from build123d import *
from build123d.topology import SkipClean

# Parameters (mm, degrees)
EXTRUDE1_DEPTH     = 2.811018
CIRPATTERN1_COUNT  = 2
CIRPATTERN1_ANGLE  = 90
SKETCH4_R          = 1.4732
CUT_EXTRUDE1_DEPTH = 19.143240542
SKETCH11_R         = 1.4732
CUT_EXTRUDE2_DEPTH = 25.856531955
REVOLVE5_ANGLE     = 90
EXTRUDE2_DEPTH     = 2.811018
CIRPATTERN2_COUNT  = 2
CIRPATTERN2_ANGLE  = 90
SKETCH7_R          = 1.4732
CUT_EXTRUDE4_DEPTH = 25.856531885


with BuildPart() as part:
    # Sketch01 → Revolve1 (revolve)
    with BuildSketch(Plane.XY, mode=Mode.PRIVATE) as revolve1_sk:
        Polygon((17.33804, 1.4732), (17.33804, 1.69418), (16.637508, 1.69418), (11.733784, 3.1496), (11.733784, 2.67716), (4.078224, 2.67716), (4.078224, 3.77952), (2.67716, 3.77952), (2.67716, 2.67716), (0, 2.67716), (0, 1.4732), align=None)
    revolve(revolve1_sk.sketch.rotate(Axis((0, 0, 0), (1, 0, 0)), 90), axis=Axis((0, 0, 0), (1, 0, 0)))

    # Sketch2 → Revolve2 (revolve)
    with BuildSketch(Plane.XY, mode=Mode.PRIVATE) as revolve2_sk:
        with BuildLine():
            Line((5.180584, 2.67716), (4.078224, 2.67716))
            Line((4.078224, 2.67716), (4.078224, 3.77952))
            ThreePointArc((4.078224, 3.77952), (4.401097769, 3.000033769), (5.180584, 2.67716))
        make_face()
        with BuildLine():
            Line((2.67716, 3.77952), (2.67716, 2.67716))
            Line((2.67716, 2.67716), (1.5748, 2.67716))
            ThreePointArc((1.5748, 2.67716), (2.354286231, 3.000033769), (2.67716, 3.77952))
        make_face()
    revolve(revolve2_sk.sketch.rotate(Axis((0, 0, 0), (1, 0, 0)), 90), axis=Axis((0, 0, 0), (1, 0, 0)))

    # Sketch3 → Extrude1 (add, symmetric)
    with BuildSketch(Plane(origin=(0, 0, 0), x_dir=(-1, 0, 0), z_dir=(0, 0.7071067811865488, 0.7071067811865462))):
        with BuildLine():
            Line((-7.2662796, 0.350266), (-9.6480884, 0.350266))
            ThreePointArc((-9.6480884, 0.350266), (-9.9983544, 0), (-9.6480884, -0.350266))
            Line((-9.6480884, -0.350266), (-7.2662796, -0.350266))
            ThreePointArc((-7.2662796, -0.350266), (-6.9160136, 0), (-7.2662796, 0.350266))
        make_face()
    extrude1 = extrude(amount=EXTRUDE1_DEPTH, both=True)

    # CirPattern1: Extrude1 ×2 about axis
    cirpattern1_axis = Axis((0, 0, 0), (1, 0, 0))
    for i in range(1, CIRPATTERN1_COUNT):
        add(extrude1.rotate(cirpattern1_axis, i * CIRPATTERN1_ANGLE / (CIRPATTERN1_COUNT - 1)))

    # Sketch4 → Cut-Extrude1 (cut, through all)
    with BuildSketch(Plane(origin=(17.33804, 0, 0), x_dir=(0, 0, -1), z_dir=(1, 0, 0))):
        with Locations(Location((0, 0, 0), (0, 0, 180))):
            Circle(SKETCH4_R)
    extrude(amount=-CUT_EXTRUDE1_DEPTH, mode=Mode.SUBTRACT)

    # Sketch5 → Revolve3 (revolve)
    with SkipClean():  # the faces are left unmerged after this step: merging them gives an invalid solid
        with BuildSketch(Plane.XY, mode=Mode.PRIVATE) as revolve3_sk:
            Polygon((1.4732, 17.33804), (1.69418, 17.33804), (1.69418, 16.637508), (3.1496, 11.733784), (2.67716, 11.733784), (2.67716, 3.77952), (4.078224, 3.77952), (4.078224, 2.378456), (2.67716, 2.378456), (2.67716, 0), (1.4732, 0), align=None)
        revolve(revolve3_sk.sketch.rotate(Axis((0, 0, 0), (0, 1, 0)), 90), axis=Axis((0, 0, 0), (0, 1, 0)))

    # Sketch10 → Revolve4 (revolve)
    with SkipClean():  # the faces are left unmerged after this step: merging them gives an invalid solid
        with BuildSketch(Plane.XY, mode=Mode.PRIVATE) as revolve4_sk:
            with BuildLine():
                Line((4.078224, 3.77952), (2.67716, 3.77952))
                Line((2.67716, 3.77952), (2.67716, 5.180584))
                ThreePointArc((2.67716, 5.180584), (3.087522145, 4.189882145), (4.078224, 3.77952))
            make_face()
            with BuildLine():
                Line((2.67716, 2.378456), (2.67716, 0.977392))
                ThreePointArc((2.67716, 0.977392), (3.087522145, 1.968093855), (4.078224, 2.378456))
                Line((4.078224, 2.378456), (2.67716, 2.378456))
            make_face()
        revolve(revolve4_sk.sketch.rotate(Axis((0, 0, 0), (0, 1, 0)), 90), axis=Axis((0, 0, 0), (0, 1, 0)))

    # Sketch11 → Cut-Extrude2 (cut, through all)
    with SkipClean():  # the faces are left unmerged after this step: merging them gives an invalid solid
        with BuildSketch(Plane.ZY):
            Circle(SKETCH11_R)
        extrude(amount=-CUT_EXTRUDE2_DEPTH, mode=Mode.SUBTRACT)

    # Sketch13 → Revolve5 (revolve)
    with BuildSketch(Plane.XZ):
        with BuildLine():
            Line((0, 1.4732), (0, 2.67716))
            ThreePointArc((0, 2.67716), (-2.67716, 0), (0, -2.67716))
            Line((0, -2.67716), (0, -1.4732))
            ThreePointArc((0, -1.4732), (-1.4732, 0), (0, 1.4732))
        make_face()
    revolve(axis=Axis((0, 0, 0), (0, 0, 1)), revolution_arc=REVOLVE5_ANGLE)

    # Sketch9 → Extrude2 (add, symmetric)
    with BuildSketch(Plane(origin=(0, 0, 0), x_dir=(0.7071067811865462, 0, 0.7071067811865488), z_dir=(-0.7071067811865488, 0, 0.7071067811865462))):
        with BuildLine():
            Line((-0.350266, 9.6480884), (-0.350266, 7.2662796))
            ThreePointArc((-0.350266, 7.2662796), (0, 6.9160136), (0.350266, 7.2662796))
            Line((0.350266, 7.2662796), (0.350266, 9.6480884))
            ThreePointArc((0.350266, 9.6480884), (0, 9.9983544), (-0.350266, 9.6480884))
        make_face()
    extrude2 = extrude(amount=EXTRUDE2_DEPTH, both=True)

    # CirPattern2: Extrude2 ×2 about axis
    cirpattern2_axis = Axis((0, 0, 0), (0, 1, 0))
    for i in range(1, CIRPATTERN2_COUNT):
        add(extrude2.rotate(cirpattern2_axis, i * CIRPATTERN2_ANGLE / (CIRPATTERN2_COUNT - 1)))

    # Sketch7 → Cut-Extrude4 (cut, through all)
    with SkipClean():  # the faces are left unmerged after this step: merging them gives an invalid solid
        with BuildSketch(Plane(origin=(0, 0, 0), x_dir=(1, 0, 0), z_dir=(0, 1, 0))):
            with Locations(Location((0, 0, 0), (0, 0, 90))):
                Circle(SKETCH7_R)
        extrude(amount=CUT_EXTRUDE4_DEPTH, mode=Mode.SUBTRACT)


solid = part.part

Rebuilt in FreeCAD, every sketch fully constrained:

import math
import FreeCAD as App
import Part
import Sketcher

V = App.Vector
Q = App.Units.Quantity


def add_polygon(sketch, points):
    """Adds a closed chain of lines whose ends are joined by coincident constraints."""
    first, n = sketch.GeometryCount, len(points)
    for a, b in zip(points, points[1:] + points[:1]):
        sketch.addGeometry(Part.LineSegment(App.Vector(*a, 0), App.Vector(*b, 0)), False)
    for i in range(n):
        sketch.addConstraint(Sketcher.Constraint("Coincident", first + i, 2, first + (i + 1) % n, 1))

doc = App.newDocument("Part")
body = doc.addObject("PartDesign::Body", "Body")

# Sketch on XY plane
sketch1 = body.newObject("Sketcher::SketchObject", "Sketch")
sketch1.AttachmentSupport = (doc.getObject("XY_Plane"), [""])
sketch1.MapMode = "FlatFace"
add_polygon(sketch1, [(17.34, 1.47), (17.34, 1.69), (16.64, 1.69), (11.73, 3.15), (11.73, 2.68), (4.08, 2.68), (4.08, 3.78), (2.68, 3.78), (2.68, 2.68), (0, 2.68), (0, 1.47)])  # lines 0-10
sketch1.addConstraint([
    Sketcher.Constraint("Vertical", 0),
    Sketcher.Constraint("Horizontal", 1),
    Sketcher.Constraint("Vertical", 3),
    Sketcher.Constraint("Horizontal", 4),
    Sketcher.Constraint("Vertical", 5),
    Sketcher.Constraint("Horizontal", 6),
    Sketcher.Constraint("Vertical", 7),
    Sketcher.Constraint("Horizontal", 8),
    Sketcher.Constraint("Vertical", 9),
    Sketcher.Constraint("Horizontal", 10),
    Sketcher.Constraint("PointOnObject", 8, 2, -2),
    Sketcher.Constraint("Horizontal", 4, 2, 7, 2),
    Sketcher.Constraint("DistanceX", 4, 2, 4, 1, Q("0.3014 in")),
    Sketcher.Constraint("DistanceX", 8, 2, 8, 1, Q("0.1054 in")),
    Sketcher.Constraint("DistanceX", 10, 1, 10, 2, Q("0.6826 in")),
    Sketcher.Constraint("DistanceY", 0, 1, 0, 2, Q("0.0087 in")),
    Sketcher.Constraint("DistanceY", 3, 2, 3, 1, Q("0.0186 in")),
    Sketcher.Constraint("DistanceY", 5, 1, 5, 2, Q("0.0434 in")),
    Sketcher.Constraint("DistanceY", 9, 2, 9, 1, Q("0.0474 in")),
    Sketcher.Constraint("DistanceY", -1, 1, 2, 2, Q("0.124 in")),
    Sketcher.Constraint("DistanceX", 1, 2, 1, 1, Q("0.700532 mm")),
    Sketcher.Constraint("Distance", 2, Q("5.11515 mm")),
])
revolution = body.newObject("PartDesign::Revolution", "Revolution")
revolution.Profile = sketch1
revolution.ReferenceAxis = (sketch1, ["H_Axis"])
revolution.Angle = 360

# Sketch on XY plane
sketch2 = body.newObject("Sketcher::SketchObject", "Sketch001")
sketch2.AttachmentSupport = (doc.getObject("XY_Plane"), [""])
sketch2.MapMode = "FlatFace"
sketch2.addGeometry([
    Part.LineSegment(V(4.1, 2.7, 0), V(5.2, 2.7, 0)),  # 0
    Part.ArcOfCircle(Part.Circle(V(5.2, 3.8, 0), V(0, 0, 1), 1.1), math.radians(-180), math.radians(-90)),  # 1
    Part.LineSegment(V(4.1, 3.8, 0), V(4.1, 2.7, 0)),  # 2
    Part.LineSegment(V(2.7, 2.7, 0), V(2.7, 3.8, 0)),  # 3
    Part.ArcOfCircle(Part.Circle(V(1.6, 3.8, 0), V(0, 0, 1), 1.1), math.radians(-90), math.radians(0)),  # 4
    Part.LineSegment(V(1.6, 2.7, 0), V(2.7, 2.7, 0)),  # 5
], False)
sketch2.addConstraint([
    Sketcher.Constraint("Tangent", 0, 2, 1, 2),
    Sketcher.Constraint("Tangent", 1, 1, 2, 1),
    Sketcher.Constraint("Coincident", 2, 2, 0, 1),
    Sketcher.Constraint("Tangent", 3, 2, 4, 2),
    Sketcher.Constraint("Tangent", 4, 1, 5, 1),
    Sketcher.Constraint("Coincident", 5, 2, 3, 1),
    Sketcher.Constraint("Horizontal", 0),
    Sketcher.Constraint("Vertical", 2),
    Sketcher.Constraint("Vertical", 3),
    Sketcher.Constraint("Horizontal", 5),
    Sketcher.Constraint("Equal", 1, 4),
    Sketcher.Constraint("Horizontal", 1, 3, 4, 3),
    Sketcher.Constraint("Radius", 1, Q("0.0434 in")),
    Sketcher.Constraint("DistanceX", -1, 1, 4, 3, Q("0.062 in")),
    Sketcher.Constraint("DistanceY", -1, 1, 1, 3, Q("0.1488 in")),
    Sketcher.Constraint("DistanceX", -1, 1, 1, 3, Q("5.180584 mm")),
])
revolution2 = body.newObject("PartDesign::Revolution", "Revolution001")
revolution2.Profile = sketch2
revolution2.ReferenceAxis = (sketch2, ["H_Axis"])
revolution2.Angle = 360

# Sketch on an angled plane
sketch3 = body.newObject("Sketcher::SketchObject", "Sketch002")
sketch3.Placement = App.Placement(V(0, 0, 0), App.Rotation(V(-1, 0, 0), V(0, -0.707106781, 0.707106781), V(0, 0.707106781, 0.707106781), "ZXY"))
sketch3.addGeometry([
    Part.LineSegment(V(-7.27, 0.35, 0), V(-9.65, 0.35, 0)),
    Part.ArcOfCircle(Part.Circle(V(-9.65, 0, 0), V(0, 0, 1), 0.35), math.radians(90), math.radians(270)),
    Part.LineSegment(V(-9.65, -0.35, 0), V(-7.27, -0.35, 0)),
    Part.ArcOfCircle(Part.Circle(V(-7.27, 0, 0), V(0, 0, 1), 0.35), math.radians(-90), math.radians(90)),
], False)
sketch3.addConstraint([
    Sketcher.Constraint("Tangent", 0, 2, 1, 1),
    Sketcher.Constraint("Tangent", 1, 2, 2, 1),
    Sketcher.Constraint("Tangent", 2, 2, 3, 1),
    Sketcher.Constraint("Tangent", 3, 2, 0, 1),
    Sketcher.Constraint("Horizontal", 0),
    Sketcher.Constraint("Horizontal", 2),
    Sketcher.Constraint("PointOnObject", 1, 3, -1),
    Sketcher.Constraint("Radius", 1, Q("0.350266 mm")),
    Sketcher.Constraint("DistanceX", 0, 2, 0, 1, Q("2.381809 mm")),
    Sketcher.Constraint("DistanceX", 1, 3, -1, 1, Q("9.648088 mm")),
])
pad1 = body.newObject("PartDesign::Pad", "Pad")
pad1.Profile = sketch3
pad1.Length = 5.622036
pad1.Midplane = True
doc.recompute()

polarpattern = body.newObject("PartDesign::PolarPattern", "PolarPattern")
polarpattern.Originals = [pad1]
polarpattern.Axis = (doc.getObject("X_Axis"), [""])
polarpattern.Angle = 90
polarpattern.Occurrences = 2
body.Tip = polarpattern

# Sketch on YZ plane
sketch4 = body.newObject("Sketcher::SketchObject", "Sketch003")
sketch4.AttachmentSupport = (doc.getObject("YZ_Plane"), [""])
sketch4.MapMode = "FlatFace"
sketch4.AttachmentOffset = App.Placement(V(0, 0, 0.6826 * 25.4), App.Rotation())
sketch4.addGeometry(Part.Circle(V(0, 0, 0), V(0, 0, 1), 1.5), False)
sketch4.addConstraint([
    Sketcher.Constraint("Coincident", 0, 3, -1, 1),
    Sketcher.Constraint("Diameter", 0, Q("0.116 in")),
])
pocket1 = body.newObject("PartDesign::Pocket", "Pocket")
pocket1.Profile = sketch4
pocket1.Type = "ThroughAll"

# Sketch on XY plane
sketch5 = body.newObject("Sketcher::SketchObject", "Sketch004")
sketch5.AttachmentSupport = (doc.getObject("XY_Plane"), [""])
sketch5.MapMode = "FlatFace"
add_polygon(sketch5, [(1.69, 17.34), (1.47, 17.34), (1.47, 0), (2.68, 0), (2.68, 2.38), (4.08, 2.38), (4.08, 3.78), (2.68, 3.78), (2.68, 11.73), (3.15, 11.73), (1.69, 16.64)])  # lines 0-10
sketch5.addConstraint([
    Sketcher.Constraint("Horizontal", 0),
    Sketcher.Constraint("Vertical", 1),
    Sketcher.Constraint("Horizontal", 2),
    Sketcher.Constraint("Vertical", 3),
    Sketcher.Constraint("Horizontal", 4),
    Sketcher.Constraint("Vertical", 5),
    Sketcher.Constraint("Horizontal", 6),
    Sketcher.Constraint("Vertical", 7),
    Sketcher.Constraint("Horizontal", 8),
    Sketcher.Constraint("Vertical", 10),
    Sketcher.Constraint("PointOnObject", 1, 2, -1),
    Sketcher.Constraint("Vertical", 3, 2, 6, 2),
    Sketcher.Constraint("Equal", 6, 5),
    Sketcher.Constraint("DistanceX", 0, 2, 0, 1, Q("0.0087 in")),
    Sketcher.Constraint("DistanceX", 2, 1, 2, 2, Q("0.0474 in")),
    Sketcher.Constraint("DistanceX", 8, 1, 8, 2, Q("0.0186 in")),
    Sketcher.Constraint("DistanceY", 1, 2, 1, 1, Q("0.6826 in")),
    Sketcher.Constraint("DistanceX", -1, 1, 0, 2, Q("0.058 in")),
    Sketcher.Constraint("DistanceY", -1, 1, 5, 2, Q("0.1488 in")),
    Sketcher.Constraint("DistanceY", 10, 1, 10, 2, Q("0.700532 mm")),
    Sketcher.Constraint("Distance", 9, Q("5.11515 mm")),
    Sketcher.Constraint("DistanceX", 4, 1, 4, 2, Q("1.401064 mm")),
])
revolution3 = body.newObject("PartDesign::Revolution", "Revolution002")
revolution3.Profile = sketch5
revolution3.ReferenceAxis = (sketch5, ["V_Axis"])
revolution3.Angle = 360

# Sketch on XY plane
sketch6 = body.newObject("Sketcher::SketchObject", "Sketch005")
sketch6.AttachmentSupport = (doc.getObject("XY_Plane"), [""])
sketch6.MapMode = "FlatFace"
sketch6.addGeometry([
    Part.LineSegment(V(2.7, 3.8, 0), V(4.1, 3.8, 0)),  # 0
    Part.ArcOfCircle(Part.Circle(V(4.1, 5.2, 0), V(0, 0, 1), 1.4), math.radians(-180), math.radians(-90)),  # 1
    Part.LineSegment(V(2.7, 5.2, 0), V(2.7, 3.8, 0)),  # 2
    Part.LineSegment(V(2.7, 2.4, 0), V(2.7, 1, 0)),  # 3
    Part.ArcOfCircle(Part.Circle(V(4.1, 1, 0), V(0, 0, 1), 1.4), math.radians(90), math.radians(180)),  # 4
    Part.LineSegment(V(4.1, 2.4, 0), V(2.7, 2.4, 0)),  # 5
], False)
sketch6.addConstraint([
    Sketcher.Constraint("Tangent", 0, 2, 1, 2),
    Sketcher.Constraint("Tangent", 1, 1, 2, 1),
    Sketcher.Constraint("Coincident", 2, 2, 0, 1),
    Sketcher.Constraint("Tangent", 3, 2, 4, 2),
    Sketcher.Constraint("Tangent", 4, 1, 5, 1),
    Sketcher.Constraint("Coincident", 5, 2, 3, 1),
    Sketcher.Constraint("Horizontal", 0),
    Sketcher.Constraint("Vertical", 2),
    Sketcher.Constraint("Vertical", 3),
    Sketcher.Constraint("Horizontal", 5),
    Sketcher.Constraint("Equal", 1, 4),
    Sketcher.Constraint("Vertical", 1, 3, 4, 3),
    Sketcher.Constraint("DistanceY", -1, 1, 0, 2, Q("0.1488 in")),
    Sketcher.Constraint("DistanceX", -1, 1, 1, 1, Q("0.1054 in")),
    Sketcher.Constraint("Radius", 1, Q("1.401064 mm")),
    Sketcher.Constraint("DistanceY", -1, 1, 4, 3, Q("0.977392 mm")),
])
revolution4 = body.newObject("PartDesign::Revolution", "Revolution003")
revolution4.Profile = sketch6
revolution4.ReferenceAxis = (sketch6, ["V_Axis"])
revolution4.Angle = 360

# Sketch on YZ plane
sketch7 = body.newObject("Sketcher::SketchObject", "Sketch006")
sketch7.AttachmentSupport = (doc.getObject("YZ_Plane"), [""])
sketch7.MapMode = "FlatFace"
sketch7.addGeometry(Part.Circle(V(0, 0, 0), V(0, 0, 1), 1.5), False)
sketch7.addConstraint([
    Sketcher.Constraint("Coincident", 0, 3, -1, 1),
    Sketcher.Constraint("Diameter", 0, Q("0.116 in")),
])
pocket2 = body.newObject("PartDesign::Pocket", "Pocket001")
pocket2.Profile = sketch7
pocket2.Type = "ThroughAll"
pocket2.Reversed = True

# Sketch on XZ plane
sketch8 = body.newObject("Sketcher::SketchObject", "Sketch007")
sketch8.AttachmentSupport = (doc.getObject("XZ_Plane"), [""])
sketch8.MapMode = "FlatFace"
sketch8.addGeometry([
    Part.LineSegment(V(0, 1.5, 0), V(0, 2.7, 0)),
    Part.ArcOfCircle(Part.Circle(V(0, 0, 0), V(0, 0, 1), 2.7), math.radians(90), math.radians(270)),
    Part.LineSegment(V(0, -2.7, 0), V(0, -1.5, 0)),
    Part.ArcOfCircle(Part.Circle(V(0, 0, 0), V(0, 0, 1), 1.5), math.radians(90), math.radians(270)),
], False)
sketch8.addConstraint([
    Sketcher.Constraint("Coincident", 0, 2, 1, 1),
    Sketcher.Constraint("Coincident", 1, 2, 2, 1),
    Sketcher.Constraint("Coincident", 2, 2, 3, 2),
    Sketcher.Constraint("Coincident", 3, 1, 0, 1),
    Sketcher.Constraint("Vertical", 0),
    Sketcher.Constraint("Vertical", 2),
    Sketcher.Constraint("Coincident", 1, 3, -1, 1),
    Sketcher.Constraint("Coincident", 3, 3, -1, 1),
    Sketcher.Constraint("PointOnObject", 0, 2, -2),
    Sketcher.Constraint("PointOnObject", 1, 2, -2),
    Sketcher.Constraint("Radius", 3, Q("0.058 in")),
    Sketcher.Constraint("Radius", 1, Q("0.1054 in")),
])
revolution5 = body.newObject("PartDesign::Revolution", "Revolution004")
revolution5.Profile = sketch8
revolution5.ReferenceAxis = (sketch8, ["V_Axis"])
revolution5.Angle = 90

# Sketch on an angled plane
sketch9 = body.newObject("Sketcher::SketchObject", "Sketch008")
sketch9.Placement = App.Placement(V(0, 0, 0), App.Rotation(V(0.707106781, 0, 0.707106781), V(0, 0.999999999, 0), V(-0.707106781, 0, 0.707106781), "ZXY"))
sketch9.addGeometry([
    Part.LineSegment(V(-0.35, 9.65, 0), V(-0.35, 7.27, 0)),
    Part.ArcOfCircle(Part.Circle(V(0, 7.27, 0), V(0, 0, 1), 0.35), math.radians(180), math.radians(360)),
    Part.LineSegment(V(0.35, 7.27, 0), V(0.35, 9.65, 0)),
    Part.ArcOfCircle(Part.Circle(V(0, 9.65, 0), V(0, 0, 1), 0.35), math.radians(0), math.radians(180)),
], False)
sketch9.addConstraint([
    Sketcher.Constraint("Tangent", 0, 2, 1, 1),
    Sketcher.Constraint("Tangent", 1, 2, 2, 1),
    Sketcher.Constraint("Tangent", 2, 2, 3, 1),
    Sketcher.Constraint("Tangent", 3, 2, 0, 1),
    Sketcher.Constraint("Vertical", 0),
    Sketcher.Constraint("Vertical", 2),
    Sketcher.Constraint("PointOnObject", 1, 3, -2),
    Sketcher.Constraint("Radius", 1, Q("0.350266 mm")),
    Sketcher.Constraint("DistanceY", 0, 2, 0, 1, Q("2.381809 mm")),
    Sketcher.Constraint("DistanceY", -1, 1, 1, 3, Q("7.26628 mm")),
])
pad2 = body.newObject("PartDesign::Pad", "Pad001")
pad2.Profile = sketch9
pad2.Length = 5.622036
pad2.Midplane = True
doc.recompute()

polarpattern2 = body.newObject("PartDesign::PolarPattern", "PolarPattern001")
polarpattern2.Originals = [pad2]
polarpattern2.Axis = (doc.getObject("Y_Axis"), [""])
polarpattern2.Angle = 90
polarpattern2.Occurrences = 2
body.Tip = polarpattern2

# Sketch on XZ plane
sketch10 = body.newObject("Sketcher::SketchObject", "Sketch009")
sketch10.AttachmentSupport = (doc.getObject("XZ_Plane"), [""])
sketch10.MapMode = "FlatFace"
sketch10.addGeometry(Part.Circle(V(0, 0, 0), V(0, 0, 1), 1.5), False)
sketch10.addConstraint([
    Sketcher.Constraint("Coincident", 0, 3, -1, 1),
    Sketcher.Constraint("Diameter", 0, Q("0.116 in")),
])
pocket3 = body.newObject("PartDesign::Pocket", "Pocket002")
pocket3.Profile = sketch10
pocket3.Type = "ThroughAll"

doc.recompute()
